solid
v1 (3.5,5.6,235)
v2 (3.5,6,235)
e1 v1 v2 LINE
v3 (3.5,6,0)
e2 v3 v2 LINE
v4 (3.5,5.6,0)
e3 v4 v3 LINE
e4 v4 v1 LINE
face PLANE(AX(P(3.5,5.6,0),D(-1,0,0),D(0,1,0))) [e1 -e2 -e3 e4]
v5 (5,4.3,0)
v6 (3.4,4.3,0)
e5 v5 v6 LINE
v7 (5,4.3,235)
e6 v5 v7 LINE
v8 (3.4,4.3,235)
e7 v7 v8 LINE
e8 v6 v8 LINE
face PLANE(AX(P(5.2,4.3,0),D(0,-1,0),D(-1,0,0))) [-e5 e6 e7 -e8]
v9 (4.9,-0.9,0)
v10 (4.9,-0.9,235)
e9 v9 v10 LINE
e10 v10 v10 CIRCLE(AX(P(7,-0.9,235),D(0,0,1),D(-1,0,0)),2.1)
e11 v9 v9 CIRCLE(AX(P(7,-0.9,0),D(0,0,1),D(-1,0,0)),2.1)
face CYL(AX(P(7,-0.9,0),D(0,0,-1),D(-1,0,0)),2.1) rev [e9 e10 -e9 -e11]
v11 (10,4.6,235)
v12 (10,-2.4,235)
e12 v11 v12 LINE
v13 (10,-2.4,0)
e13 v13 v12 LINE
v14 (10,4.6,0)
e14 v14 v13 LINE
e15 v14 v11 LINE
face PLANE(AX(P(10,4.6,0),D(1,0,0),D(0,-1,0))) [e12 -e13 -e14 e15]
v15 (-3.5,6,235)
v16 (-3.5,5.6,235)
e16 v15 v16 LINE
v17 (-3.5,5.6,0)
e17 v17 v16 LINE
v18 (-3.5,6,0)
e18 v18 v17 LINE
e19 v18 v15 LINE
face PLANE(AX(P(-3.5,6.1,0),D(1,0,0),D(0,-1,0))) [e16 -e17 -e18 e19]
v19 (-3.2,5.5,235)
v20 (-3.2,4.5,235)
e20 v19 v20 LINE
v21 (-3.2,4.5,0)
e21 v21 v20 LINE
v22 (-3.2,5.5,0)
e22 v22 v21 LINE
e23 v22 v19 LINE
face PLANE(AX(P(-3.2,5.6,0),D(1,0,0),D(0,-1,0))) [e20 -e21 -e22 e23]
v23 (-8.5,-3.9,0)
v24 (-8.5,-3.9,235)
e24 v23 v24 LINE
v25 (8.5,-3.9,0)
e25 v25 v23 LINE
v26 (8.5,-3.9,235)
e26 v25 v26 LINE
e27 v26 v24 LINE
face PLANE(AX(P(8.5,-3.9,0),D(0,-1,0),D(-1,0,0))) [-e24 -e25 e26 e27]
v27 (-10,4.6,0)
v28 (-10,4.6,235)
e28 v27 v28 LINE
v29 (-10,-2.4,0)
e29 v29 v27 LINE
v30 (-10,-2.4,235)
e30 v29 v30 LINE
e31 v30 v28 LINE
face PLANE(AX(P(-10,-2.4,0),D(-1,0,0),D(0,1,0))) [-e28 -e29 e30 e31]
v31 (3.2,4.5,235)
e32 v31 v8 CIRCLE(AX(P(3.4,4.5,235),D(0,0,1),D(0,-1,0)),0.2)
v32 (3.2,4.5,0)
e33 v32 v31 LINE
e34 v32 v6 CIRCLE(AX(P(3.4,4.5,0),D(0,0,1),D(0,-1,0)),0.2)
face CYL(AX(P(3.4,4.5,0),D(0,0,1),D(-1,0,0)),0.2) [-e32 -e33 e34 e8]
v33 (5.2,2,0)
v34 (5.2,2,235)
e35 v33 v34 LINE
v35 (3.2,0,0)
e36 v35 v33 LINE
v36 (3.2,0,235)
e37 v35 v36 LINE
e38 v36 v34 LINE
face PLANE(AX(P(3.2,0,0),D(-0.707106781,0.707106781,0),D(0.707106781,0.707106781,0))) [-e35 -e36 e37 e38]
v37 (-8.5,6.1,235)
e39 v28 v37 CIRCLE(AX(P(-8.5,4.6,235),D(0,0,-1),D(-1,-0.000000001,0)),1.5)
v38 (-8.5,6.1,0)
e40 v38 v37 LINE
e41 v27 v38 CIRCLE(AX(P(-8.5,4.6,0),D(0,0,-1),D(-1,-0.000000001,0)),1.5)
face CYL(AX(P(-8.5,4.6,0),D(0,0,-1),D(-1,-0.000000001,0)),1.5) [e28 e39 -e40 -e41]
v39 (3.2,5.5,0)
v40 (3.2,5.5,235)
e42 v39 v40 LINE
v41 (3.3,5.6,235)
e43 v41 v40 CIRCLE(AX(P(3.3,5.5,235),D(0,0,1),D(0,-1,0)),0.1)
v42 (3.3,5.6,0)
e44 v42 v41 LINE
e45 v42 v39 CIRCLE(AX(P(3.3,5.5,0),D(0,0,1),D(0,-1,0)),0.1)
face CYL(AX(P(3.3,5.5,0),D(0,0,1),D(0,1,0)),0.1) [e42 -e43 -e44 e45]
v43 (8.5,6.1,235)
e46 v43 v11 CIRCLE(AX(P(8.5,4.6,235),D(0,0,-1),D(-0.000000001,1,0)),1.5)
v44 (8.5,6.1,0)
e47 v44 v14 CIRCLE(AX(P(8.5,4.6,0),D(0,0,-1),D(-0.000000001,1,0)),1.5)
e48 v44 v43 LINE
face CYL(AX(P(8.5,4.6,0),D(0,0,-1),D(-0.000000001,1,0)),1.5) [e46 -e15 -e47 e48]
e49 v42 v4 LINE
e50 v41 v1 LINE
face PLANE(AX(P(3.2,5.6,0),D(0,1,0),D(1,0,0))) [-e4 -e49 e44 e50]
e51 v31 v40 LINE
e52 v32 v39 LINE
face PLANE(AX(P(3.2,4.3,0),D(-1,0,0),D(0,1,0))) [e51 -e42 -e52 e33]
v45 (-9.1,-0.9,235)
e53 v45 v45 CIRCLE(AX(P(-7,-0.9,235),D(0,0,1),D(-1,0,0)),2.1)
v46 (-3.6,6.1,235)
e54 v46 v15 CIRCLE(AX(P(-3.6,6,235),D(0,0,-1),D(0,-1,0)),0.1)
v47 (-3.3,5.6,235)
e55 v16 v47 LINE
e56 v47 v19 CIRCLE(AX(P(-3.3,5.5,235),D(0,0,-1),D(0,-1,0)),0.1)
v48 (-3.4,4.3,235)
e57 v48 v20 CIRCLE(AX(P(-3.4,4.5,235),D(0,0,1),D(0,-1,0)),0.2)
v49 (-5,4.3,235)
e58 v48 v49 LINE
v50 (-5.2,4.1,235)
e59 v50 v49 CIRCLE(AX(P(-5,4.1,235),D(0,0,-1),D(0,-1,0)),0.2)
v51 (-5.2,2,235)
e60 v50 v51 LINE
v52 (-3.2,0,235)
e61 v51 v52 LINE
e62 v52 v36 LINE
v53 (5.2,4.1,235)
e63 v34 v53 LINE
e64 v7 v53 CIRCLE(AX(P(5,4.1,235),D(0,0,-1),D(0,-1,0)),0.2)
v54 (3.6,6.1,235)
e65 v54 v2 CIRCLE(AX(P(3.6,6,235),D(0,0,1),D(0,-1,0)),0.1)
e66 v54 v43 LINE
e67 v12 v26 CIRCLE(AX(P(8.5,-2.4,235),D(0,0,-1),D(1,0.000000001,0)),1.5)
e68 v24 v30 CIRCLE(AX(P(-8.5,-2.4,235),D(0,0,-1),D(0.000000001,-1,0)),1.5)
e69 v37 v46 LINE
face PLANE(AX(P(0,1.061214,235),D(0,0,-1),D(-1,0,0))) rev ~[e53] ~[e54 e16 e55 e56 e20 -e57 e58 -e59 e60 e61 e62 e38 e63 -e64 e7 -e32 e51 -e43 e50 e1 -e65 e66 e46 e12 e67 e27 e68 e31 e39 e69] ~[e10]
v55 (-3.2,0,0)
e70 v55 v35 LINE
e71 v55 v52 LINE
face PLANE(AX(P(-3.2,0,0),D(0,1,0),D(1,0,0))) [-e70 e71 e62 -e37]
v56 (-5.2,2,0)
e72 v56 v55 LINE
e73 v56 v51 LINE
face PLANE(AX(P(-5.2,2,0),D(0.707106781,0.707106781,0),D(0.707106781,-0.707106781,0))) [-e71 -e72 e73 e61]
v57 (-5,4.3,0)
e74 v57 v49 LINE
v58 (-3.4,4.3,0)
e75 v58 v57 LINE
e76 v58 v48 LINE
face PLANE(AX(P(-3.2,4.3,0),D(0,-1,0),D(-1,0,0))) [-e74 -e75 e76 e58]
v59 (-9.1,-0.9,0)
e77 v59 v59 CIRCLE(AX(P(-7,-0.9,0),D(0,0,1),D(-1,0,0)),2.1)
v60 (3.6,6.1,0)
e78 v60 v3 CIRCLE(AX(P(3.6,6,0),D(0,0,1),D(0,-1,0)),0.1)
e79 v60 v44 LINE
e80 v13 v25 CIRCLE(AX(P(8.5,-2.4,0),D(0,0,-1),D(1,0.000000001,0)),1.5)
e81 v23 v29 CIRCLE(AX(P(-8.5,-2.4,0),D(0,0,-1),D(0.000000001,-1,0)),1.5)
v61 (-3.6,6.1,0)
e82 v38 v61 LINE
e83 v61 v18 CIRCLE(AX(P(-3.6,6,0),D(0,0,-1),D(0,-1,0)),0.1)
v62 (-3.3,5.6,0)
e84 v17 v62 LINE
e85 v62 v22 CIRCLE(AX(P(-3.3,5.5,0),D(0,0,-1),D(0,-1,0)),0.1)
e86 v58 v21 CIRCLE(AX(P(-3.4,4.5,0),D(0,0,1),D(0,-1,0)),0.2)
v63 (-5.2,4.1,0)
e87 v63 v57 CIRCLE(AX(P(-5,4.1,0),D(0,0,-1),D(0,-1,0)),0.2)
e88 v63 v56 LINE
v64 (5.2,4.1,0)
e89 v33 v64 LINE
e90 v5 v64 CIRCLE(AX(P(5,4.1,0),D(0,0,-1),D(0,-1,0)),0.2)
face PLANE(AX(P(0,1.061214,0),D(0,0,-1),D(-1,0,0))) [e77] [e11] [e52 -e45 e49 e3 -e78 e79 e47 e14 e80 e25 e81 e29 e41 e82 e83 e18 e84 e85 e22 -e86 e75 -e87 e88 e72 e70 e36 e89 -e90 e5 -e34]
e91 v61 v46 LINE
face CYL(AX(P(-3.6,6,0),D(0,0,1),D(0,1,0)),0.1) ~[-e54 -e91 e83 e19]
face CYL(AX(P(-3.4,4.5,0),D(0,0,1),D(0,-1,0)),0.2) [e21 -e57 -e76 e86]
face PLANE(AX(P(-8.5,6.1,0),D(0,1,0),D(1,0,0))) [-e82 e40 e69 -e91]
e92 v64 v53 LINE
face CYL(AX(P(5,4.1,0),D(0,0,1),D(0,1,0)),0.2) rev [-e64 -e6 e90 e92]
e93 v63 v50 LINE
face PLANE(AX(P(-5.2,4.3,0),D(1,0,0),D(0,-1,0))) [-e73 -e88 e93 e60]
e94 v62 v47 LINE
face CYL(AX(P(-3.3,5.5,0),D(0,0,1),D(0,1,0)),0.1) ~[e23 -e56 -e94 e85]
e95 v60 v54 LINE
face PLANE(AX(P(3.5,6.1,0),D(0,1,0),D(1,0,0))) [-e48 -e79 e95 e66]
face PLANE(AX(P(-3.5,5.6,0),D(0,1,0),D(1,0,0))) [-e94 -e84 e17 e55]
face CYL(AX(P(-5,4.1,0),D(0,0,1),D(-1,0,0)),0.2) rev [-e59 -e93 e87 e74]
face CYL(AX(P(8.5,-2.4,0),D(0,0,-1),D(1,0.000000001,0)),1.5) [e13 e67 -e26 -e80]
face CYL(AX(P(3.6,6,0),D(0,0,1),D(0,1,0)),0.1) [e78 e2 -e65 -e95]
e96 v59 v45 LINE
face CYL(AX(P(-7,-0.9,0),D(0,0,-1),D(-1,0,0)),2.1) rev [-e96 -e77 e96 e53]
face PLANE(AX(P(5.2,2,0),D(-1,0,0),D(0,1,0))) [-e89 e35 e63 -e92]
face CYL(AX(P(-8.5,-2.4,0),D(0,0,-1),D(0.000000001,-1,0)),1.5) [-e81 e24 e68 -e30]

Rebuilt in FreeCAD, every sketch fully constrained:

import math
import FreeCAD as App
import Part
import Sketcher

V = App.Vector


def edges_at(feature, points):
    """Names of the edges that pass closest to the given points."""
    edges = feature.Shape.Edges
    near = lambda p: min(range(len(edges)), key=lambda i: edges[i].distToShape(Part.Vertex(*p))[0])
    return sorted({f"Edge{near(p) + 1}" for p in points})

doc = App.newDocument("Part")
body = doc.addObject("PartDesign::Body", "Body")

sketch1 = body.newObject("Sketcher::SketchObject", "Sketch")
sketch1.AttachmentSupport = (doc.getObject("XY_Plane"), [""])
sketch1.MapMode = "FlatFace"
sketch1.addGeometry([
    Part.LineSegment(V(-8.5, -3.9, 0), V(8.5, -3.9, 0)),
    Part.ArcOfCircle(Part.Circle(V(8.5, -2.4, 0), V(0, 0, 1), 1.5), math.radians(-90), math.radians(0)),
    Part.LineSegment(V(10, -2.4, 0), V(10, 4.6, 0)),
    Part.ArcOfCircle(Part.Circle(V(8.5, 4.6, 0), V(0, 0, 1), 1.5), math.radians(0), math.radians(90)),
    Part.LineSegment(V(8.5, 6.1, 0), V(3.5, 6.1, 0)),
    Part.LineSegment(V(3.5, 6.1, 0), V(3.5, 5.6, 0)),
    Part.LineSegment(V(3.5, 5.6, 0), V(3.2, 5.6, 0)),
    Part.LineSegment(V(3.2, 5.6, 0), V(3.2, 4.3, 0)),
    Part.LineSegment(V(3.2, 4.3, 0), V(5.2, 4.3, 0)),
    Part.LineSegment(V(5.2, 4.3, 0), V(5.2, 2, 0)),
    Part.LineSegment(V(5.2, 2, 0), V(3.2, 0, 0)),
    Part.LineSegment(V(3.2, 0, 0), V(-3.2, 0, 0)),
    Part.LineSegment(V(-3.2, 0, 0), V(-5.2, 2, 0)),
    Part.LineSegment(V(-5.2, 2, 0), V(-5.2, 4.3, 0)),
    Part.LineSegment(V(-5.2, 4.3, 0), V(-3.2, 4.3, 0)),
    Part.LineSegment(V(-3.2, 4.3, 0), V(-3.2, 5.6, 0)),
    Part.LineSegment(V(-3.2, 5.6, 0), V(-3.5, 5.6, 0)),
    Part.LineSegment(V(-3.5, 5.6, 0), V(-3.5, 6.1, 0)),
    Part.LineSegment(V(-3.5, 6.1, 0), V(-8.5, 6.1, 0)),
    Part.ArcOfCircle(Part.Circle(V(-8.5, 4.6, 0), V(0, 0, 1), 1.5), math.radians(90), math.radians(180)),
    Part.LineSegment(V(-10, 4.6, 0), V(-10, -2.4, 0)),
    Part.ArcOfCircle(Part.Circle(V(-8.5, -2.4, 0), V(0, 0, 1), 1.5), math.radians(180), math.radians(270)),
    Part.Circle(V(7, -0.9, 0), V(0, 0, 1), 2.1),
    Part.Circle(V(-7, -0.9, 0), V(0, 0, 1), 2.1),
], False)
sketch1.addConstraint([
    Sketcher.Constraint("Tangent", 0, 2, 1, 1),
    Sketcher.Constraint("Tangent", 1, 2, 2, 1),
    Sketcher.Constraint("Tangent", 2, 2, 3, 1),
    Sketcher.Constraint("Tangent", 3, 2, 4, 1),
    Sketcher.Constraint("Coincident", 4, 2, 5, 1),
    Sketcher.Constraint("Coincident", 5, 2, 6, 1),
    Sketcher.Constraint("Coincident", 6, 2, 7, 1),
    Sketcher.Constraint("Coincident", 7, 2, 8, 1),
    Sketcher.Constraint("Coincident", 8, 2, 9, 1),
    Sketcher.Constraint("Coincident", 9, 2, 10, 1),
    Sketcher.Constraint("Coincident", 10, 2, 11, 1),
    Sketcher.Constraint("Coincident", 11, 2, 12, 1),
    Sketcher.Constraint("Coincident", 12, 2, 13, 1),
    Sketcher.Constraint("Coincident", 13, 2, 14, 1),
    Sketcher.Constraint("Coincident", 14, 2, 15, 1),
    Sketcher.Constraint("Coincident", 15, 2, 16, 1),
    Sketcher.Constraint("Coincident", 16, 2, 17, 1),
    Sketcher.Constraint("Coincident", 17, 2, 18, 1),
    Sketcher.Constraint("Tangent", 18, 2, 19, 1),
    Sketcher.Constraint("Tangent", 19, 2, 20, 1),
    Sketcher.Constraint("Tangent", 20, 2, 21, 1),
    Sketcher.Constraint("Tangent", 21, 2, 0, 1),
    Sketcher.Constraint("Horizontal", 0),
    Sketcher.Constraint("Vertical", 2),
    Sketcher.Constraint("Horizontal", 4),
    Sketcher.Constraint("Vertical", 5),
    Sketcher.Constraint("Horizontal", 6),
    Sketcher.Constraint("Vertical", 7),
    Sketcher.Constraint("Horizontal", 8),
    Sketcher.Constraint("Vertical", 9),
    Sketcher.Constraint("Horizontal", 11),
    Sketcher.Constraint("Vertical", 13),
    Sketcher.Constraint("Horizontal", 14),
    Sketcher.Constraint("Vertical", 15),
    Sketcher.Constraint("Horizontal", 16),
    Sketcher.Constraint("Vertical", 17),
    Sketcher.Constraint("Horizontal", 18),
    Sketcher.Constraint("Vertical", 20),
    Sketcher.Constraint("Equal", 1, 3),
    Sketcher.Constraint("Equal", 3, 19),
    Sketcher.Constraint("Equal", 19, 21),
    Sketcher.Constraint("Equal", 22, 23),
    Sketcher.Constraint("Symmetric", 10, 2, 11, 2, -1, 1),
    Sketcher.Constraint("Symmetric", 3, 3, 19, 3, -2),
    Sketcher.Constraint("Symmetric", 22, 3, 23, 3, -2),
    Sketcher.Constraint("Symmetric", 9, 2, 12, 2, -2),
    Sketcher.Constraint("Symmetric", 7, 2, 14, 2, -2),
    Sketcher.Constraint("Symmetric", 5, 2, 16, 2, -2),
    Sketcher.Constraint("Perpendicular", 10, 12),
    Sketcher.Constraint("Vertical", 7, 2, 10, 2),
    Sketcher.Constraint("Diameter", 22, 4.2),
    Sketcher.Constraint("Radius", 1, 1.5),
    Sketcher.Constraint("DistanceX", 0, 1, 0, 2, 17.0),
    Sketcher.Constraint("DistanceX", 4, 2, 4, 1, 5.0),
    Sketcher.Constraint("DistanceX", 8, 1, 8, 2, 2.0),
    Sketcher.Constraint("DistanceY", 2, 1, 2, 2, 7.0),
    Sketcher.Constraint("DistanceX", 6, 2, 6, 1, 0.3),
    Sketcher.Constraint("DistanceY", 5, 2, 5, 1, 0.5),
    Sketcher.Constraint("DistanceY", 7, 2, 7, 1, 1.3),
    Sketcher.Constraint("DistanceY", 9, 2, 9, 1, 2.3),
    Sketcher.Constraint("DistanceX", -1, 1, 22, 3, 7.0),
    Sketcher.Constraint("DistanceY", 0, 2, 22, 3, 3.0),
])
pad1 = body.newObject("PartDesign::Pad", "Pad")
pad1.Profile = sketch1
pad1.Length = 235
doc.recompute()

fillet = body.newObject("PartDesign::Fillet", "Fillet")
fillet.Base = (pad1, edges_at(pad1, [
    (3.2, 5.6, 117.5),
    (3.5, 6.1, 117.5),
    (-3.5, 6.1, 117.5),
    (-3.2, 5.6, 117.5),
]))
fillet.Radius = 0.1
doc.recompute()

fillet2 = body.newObject("PartDesign::Fillet", "Fillet001")
fillet2.Base = (fillet, edges_at(fillet, [
    (5.2, 4.3, 117.5),
    (3.2, 4.3, 117.5),
    (-3.2, 4.3, 117.5),
    (-5.2, 4.3, 117.5),
]))
fillet2.Radius = 0.2

doc.recompute()
